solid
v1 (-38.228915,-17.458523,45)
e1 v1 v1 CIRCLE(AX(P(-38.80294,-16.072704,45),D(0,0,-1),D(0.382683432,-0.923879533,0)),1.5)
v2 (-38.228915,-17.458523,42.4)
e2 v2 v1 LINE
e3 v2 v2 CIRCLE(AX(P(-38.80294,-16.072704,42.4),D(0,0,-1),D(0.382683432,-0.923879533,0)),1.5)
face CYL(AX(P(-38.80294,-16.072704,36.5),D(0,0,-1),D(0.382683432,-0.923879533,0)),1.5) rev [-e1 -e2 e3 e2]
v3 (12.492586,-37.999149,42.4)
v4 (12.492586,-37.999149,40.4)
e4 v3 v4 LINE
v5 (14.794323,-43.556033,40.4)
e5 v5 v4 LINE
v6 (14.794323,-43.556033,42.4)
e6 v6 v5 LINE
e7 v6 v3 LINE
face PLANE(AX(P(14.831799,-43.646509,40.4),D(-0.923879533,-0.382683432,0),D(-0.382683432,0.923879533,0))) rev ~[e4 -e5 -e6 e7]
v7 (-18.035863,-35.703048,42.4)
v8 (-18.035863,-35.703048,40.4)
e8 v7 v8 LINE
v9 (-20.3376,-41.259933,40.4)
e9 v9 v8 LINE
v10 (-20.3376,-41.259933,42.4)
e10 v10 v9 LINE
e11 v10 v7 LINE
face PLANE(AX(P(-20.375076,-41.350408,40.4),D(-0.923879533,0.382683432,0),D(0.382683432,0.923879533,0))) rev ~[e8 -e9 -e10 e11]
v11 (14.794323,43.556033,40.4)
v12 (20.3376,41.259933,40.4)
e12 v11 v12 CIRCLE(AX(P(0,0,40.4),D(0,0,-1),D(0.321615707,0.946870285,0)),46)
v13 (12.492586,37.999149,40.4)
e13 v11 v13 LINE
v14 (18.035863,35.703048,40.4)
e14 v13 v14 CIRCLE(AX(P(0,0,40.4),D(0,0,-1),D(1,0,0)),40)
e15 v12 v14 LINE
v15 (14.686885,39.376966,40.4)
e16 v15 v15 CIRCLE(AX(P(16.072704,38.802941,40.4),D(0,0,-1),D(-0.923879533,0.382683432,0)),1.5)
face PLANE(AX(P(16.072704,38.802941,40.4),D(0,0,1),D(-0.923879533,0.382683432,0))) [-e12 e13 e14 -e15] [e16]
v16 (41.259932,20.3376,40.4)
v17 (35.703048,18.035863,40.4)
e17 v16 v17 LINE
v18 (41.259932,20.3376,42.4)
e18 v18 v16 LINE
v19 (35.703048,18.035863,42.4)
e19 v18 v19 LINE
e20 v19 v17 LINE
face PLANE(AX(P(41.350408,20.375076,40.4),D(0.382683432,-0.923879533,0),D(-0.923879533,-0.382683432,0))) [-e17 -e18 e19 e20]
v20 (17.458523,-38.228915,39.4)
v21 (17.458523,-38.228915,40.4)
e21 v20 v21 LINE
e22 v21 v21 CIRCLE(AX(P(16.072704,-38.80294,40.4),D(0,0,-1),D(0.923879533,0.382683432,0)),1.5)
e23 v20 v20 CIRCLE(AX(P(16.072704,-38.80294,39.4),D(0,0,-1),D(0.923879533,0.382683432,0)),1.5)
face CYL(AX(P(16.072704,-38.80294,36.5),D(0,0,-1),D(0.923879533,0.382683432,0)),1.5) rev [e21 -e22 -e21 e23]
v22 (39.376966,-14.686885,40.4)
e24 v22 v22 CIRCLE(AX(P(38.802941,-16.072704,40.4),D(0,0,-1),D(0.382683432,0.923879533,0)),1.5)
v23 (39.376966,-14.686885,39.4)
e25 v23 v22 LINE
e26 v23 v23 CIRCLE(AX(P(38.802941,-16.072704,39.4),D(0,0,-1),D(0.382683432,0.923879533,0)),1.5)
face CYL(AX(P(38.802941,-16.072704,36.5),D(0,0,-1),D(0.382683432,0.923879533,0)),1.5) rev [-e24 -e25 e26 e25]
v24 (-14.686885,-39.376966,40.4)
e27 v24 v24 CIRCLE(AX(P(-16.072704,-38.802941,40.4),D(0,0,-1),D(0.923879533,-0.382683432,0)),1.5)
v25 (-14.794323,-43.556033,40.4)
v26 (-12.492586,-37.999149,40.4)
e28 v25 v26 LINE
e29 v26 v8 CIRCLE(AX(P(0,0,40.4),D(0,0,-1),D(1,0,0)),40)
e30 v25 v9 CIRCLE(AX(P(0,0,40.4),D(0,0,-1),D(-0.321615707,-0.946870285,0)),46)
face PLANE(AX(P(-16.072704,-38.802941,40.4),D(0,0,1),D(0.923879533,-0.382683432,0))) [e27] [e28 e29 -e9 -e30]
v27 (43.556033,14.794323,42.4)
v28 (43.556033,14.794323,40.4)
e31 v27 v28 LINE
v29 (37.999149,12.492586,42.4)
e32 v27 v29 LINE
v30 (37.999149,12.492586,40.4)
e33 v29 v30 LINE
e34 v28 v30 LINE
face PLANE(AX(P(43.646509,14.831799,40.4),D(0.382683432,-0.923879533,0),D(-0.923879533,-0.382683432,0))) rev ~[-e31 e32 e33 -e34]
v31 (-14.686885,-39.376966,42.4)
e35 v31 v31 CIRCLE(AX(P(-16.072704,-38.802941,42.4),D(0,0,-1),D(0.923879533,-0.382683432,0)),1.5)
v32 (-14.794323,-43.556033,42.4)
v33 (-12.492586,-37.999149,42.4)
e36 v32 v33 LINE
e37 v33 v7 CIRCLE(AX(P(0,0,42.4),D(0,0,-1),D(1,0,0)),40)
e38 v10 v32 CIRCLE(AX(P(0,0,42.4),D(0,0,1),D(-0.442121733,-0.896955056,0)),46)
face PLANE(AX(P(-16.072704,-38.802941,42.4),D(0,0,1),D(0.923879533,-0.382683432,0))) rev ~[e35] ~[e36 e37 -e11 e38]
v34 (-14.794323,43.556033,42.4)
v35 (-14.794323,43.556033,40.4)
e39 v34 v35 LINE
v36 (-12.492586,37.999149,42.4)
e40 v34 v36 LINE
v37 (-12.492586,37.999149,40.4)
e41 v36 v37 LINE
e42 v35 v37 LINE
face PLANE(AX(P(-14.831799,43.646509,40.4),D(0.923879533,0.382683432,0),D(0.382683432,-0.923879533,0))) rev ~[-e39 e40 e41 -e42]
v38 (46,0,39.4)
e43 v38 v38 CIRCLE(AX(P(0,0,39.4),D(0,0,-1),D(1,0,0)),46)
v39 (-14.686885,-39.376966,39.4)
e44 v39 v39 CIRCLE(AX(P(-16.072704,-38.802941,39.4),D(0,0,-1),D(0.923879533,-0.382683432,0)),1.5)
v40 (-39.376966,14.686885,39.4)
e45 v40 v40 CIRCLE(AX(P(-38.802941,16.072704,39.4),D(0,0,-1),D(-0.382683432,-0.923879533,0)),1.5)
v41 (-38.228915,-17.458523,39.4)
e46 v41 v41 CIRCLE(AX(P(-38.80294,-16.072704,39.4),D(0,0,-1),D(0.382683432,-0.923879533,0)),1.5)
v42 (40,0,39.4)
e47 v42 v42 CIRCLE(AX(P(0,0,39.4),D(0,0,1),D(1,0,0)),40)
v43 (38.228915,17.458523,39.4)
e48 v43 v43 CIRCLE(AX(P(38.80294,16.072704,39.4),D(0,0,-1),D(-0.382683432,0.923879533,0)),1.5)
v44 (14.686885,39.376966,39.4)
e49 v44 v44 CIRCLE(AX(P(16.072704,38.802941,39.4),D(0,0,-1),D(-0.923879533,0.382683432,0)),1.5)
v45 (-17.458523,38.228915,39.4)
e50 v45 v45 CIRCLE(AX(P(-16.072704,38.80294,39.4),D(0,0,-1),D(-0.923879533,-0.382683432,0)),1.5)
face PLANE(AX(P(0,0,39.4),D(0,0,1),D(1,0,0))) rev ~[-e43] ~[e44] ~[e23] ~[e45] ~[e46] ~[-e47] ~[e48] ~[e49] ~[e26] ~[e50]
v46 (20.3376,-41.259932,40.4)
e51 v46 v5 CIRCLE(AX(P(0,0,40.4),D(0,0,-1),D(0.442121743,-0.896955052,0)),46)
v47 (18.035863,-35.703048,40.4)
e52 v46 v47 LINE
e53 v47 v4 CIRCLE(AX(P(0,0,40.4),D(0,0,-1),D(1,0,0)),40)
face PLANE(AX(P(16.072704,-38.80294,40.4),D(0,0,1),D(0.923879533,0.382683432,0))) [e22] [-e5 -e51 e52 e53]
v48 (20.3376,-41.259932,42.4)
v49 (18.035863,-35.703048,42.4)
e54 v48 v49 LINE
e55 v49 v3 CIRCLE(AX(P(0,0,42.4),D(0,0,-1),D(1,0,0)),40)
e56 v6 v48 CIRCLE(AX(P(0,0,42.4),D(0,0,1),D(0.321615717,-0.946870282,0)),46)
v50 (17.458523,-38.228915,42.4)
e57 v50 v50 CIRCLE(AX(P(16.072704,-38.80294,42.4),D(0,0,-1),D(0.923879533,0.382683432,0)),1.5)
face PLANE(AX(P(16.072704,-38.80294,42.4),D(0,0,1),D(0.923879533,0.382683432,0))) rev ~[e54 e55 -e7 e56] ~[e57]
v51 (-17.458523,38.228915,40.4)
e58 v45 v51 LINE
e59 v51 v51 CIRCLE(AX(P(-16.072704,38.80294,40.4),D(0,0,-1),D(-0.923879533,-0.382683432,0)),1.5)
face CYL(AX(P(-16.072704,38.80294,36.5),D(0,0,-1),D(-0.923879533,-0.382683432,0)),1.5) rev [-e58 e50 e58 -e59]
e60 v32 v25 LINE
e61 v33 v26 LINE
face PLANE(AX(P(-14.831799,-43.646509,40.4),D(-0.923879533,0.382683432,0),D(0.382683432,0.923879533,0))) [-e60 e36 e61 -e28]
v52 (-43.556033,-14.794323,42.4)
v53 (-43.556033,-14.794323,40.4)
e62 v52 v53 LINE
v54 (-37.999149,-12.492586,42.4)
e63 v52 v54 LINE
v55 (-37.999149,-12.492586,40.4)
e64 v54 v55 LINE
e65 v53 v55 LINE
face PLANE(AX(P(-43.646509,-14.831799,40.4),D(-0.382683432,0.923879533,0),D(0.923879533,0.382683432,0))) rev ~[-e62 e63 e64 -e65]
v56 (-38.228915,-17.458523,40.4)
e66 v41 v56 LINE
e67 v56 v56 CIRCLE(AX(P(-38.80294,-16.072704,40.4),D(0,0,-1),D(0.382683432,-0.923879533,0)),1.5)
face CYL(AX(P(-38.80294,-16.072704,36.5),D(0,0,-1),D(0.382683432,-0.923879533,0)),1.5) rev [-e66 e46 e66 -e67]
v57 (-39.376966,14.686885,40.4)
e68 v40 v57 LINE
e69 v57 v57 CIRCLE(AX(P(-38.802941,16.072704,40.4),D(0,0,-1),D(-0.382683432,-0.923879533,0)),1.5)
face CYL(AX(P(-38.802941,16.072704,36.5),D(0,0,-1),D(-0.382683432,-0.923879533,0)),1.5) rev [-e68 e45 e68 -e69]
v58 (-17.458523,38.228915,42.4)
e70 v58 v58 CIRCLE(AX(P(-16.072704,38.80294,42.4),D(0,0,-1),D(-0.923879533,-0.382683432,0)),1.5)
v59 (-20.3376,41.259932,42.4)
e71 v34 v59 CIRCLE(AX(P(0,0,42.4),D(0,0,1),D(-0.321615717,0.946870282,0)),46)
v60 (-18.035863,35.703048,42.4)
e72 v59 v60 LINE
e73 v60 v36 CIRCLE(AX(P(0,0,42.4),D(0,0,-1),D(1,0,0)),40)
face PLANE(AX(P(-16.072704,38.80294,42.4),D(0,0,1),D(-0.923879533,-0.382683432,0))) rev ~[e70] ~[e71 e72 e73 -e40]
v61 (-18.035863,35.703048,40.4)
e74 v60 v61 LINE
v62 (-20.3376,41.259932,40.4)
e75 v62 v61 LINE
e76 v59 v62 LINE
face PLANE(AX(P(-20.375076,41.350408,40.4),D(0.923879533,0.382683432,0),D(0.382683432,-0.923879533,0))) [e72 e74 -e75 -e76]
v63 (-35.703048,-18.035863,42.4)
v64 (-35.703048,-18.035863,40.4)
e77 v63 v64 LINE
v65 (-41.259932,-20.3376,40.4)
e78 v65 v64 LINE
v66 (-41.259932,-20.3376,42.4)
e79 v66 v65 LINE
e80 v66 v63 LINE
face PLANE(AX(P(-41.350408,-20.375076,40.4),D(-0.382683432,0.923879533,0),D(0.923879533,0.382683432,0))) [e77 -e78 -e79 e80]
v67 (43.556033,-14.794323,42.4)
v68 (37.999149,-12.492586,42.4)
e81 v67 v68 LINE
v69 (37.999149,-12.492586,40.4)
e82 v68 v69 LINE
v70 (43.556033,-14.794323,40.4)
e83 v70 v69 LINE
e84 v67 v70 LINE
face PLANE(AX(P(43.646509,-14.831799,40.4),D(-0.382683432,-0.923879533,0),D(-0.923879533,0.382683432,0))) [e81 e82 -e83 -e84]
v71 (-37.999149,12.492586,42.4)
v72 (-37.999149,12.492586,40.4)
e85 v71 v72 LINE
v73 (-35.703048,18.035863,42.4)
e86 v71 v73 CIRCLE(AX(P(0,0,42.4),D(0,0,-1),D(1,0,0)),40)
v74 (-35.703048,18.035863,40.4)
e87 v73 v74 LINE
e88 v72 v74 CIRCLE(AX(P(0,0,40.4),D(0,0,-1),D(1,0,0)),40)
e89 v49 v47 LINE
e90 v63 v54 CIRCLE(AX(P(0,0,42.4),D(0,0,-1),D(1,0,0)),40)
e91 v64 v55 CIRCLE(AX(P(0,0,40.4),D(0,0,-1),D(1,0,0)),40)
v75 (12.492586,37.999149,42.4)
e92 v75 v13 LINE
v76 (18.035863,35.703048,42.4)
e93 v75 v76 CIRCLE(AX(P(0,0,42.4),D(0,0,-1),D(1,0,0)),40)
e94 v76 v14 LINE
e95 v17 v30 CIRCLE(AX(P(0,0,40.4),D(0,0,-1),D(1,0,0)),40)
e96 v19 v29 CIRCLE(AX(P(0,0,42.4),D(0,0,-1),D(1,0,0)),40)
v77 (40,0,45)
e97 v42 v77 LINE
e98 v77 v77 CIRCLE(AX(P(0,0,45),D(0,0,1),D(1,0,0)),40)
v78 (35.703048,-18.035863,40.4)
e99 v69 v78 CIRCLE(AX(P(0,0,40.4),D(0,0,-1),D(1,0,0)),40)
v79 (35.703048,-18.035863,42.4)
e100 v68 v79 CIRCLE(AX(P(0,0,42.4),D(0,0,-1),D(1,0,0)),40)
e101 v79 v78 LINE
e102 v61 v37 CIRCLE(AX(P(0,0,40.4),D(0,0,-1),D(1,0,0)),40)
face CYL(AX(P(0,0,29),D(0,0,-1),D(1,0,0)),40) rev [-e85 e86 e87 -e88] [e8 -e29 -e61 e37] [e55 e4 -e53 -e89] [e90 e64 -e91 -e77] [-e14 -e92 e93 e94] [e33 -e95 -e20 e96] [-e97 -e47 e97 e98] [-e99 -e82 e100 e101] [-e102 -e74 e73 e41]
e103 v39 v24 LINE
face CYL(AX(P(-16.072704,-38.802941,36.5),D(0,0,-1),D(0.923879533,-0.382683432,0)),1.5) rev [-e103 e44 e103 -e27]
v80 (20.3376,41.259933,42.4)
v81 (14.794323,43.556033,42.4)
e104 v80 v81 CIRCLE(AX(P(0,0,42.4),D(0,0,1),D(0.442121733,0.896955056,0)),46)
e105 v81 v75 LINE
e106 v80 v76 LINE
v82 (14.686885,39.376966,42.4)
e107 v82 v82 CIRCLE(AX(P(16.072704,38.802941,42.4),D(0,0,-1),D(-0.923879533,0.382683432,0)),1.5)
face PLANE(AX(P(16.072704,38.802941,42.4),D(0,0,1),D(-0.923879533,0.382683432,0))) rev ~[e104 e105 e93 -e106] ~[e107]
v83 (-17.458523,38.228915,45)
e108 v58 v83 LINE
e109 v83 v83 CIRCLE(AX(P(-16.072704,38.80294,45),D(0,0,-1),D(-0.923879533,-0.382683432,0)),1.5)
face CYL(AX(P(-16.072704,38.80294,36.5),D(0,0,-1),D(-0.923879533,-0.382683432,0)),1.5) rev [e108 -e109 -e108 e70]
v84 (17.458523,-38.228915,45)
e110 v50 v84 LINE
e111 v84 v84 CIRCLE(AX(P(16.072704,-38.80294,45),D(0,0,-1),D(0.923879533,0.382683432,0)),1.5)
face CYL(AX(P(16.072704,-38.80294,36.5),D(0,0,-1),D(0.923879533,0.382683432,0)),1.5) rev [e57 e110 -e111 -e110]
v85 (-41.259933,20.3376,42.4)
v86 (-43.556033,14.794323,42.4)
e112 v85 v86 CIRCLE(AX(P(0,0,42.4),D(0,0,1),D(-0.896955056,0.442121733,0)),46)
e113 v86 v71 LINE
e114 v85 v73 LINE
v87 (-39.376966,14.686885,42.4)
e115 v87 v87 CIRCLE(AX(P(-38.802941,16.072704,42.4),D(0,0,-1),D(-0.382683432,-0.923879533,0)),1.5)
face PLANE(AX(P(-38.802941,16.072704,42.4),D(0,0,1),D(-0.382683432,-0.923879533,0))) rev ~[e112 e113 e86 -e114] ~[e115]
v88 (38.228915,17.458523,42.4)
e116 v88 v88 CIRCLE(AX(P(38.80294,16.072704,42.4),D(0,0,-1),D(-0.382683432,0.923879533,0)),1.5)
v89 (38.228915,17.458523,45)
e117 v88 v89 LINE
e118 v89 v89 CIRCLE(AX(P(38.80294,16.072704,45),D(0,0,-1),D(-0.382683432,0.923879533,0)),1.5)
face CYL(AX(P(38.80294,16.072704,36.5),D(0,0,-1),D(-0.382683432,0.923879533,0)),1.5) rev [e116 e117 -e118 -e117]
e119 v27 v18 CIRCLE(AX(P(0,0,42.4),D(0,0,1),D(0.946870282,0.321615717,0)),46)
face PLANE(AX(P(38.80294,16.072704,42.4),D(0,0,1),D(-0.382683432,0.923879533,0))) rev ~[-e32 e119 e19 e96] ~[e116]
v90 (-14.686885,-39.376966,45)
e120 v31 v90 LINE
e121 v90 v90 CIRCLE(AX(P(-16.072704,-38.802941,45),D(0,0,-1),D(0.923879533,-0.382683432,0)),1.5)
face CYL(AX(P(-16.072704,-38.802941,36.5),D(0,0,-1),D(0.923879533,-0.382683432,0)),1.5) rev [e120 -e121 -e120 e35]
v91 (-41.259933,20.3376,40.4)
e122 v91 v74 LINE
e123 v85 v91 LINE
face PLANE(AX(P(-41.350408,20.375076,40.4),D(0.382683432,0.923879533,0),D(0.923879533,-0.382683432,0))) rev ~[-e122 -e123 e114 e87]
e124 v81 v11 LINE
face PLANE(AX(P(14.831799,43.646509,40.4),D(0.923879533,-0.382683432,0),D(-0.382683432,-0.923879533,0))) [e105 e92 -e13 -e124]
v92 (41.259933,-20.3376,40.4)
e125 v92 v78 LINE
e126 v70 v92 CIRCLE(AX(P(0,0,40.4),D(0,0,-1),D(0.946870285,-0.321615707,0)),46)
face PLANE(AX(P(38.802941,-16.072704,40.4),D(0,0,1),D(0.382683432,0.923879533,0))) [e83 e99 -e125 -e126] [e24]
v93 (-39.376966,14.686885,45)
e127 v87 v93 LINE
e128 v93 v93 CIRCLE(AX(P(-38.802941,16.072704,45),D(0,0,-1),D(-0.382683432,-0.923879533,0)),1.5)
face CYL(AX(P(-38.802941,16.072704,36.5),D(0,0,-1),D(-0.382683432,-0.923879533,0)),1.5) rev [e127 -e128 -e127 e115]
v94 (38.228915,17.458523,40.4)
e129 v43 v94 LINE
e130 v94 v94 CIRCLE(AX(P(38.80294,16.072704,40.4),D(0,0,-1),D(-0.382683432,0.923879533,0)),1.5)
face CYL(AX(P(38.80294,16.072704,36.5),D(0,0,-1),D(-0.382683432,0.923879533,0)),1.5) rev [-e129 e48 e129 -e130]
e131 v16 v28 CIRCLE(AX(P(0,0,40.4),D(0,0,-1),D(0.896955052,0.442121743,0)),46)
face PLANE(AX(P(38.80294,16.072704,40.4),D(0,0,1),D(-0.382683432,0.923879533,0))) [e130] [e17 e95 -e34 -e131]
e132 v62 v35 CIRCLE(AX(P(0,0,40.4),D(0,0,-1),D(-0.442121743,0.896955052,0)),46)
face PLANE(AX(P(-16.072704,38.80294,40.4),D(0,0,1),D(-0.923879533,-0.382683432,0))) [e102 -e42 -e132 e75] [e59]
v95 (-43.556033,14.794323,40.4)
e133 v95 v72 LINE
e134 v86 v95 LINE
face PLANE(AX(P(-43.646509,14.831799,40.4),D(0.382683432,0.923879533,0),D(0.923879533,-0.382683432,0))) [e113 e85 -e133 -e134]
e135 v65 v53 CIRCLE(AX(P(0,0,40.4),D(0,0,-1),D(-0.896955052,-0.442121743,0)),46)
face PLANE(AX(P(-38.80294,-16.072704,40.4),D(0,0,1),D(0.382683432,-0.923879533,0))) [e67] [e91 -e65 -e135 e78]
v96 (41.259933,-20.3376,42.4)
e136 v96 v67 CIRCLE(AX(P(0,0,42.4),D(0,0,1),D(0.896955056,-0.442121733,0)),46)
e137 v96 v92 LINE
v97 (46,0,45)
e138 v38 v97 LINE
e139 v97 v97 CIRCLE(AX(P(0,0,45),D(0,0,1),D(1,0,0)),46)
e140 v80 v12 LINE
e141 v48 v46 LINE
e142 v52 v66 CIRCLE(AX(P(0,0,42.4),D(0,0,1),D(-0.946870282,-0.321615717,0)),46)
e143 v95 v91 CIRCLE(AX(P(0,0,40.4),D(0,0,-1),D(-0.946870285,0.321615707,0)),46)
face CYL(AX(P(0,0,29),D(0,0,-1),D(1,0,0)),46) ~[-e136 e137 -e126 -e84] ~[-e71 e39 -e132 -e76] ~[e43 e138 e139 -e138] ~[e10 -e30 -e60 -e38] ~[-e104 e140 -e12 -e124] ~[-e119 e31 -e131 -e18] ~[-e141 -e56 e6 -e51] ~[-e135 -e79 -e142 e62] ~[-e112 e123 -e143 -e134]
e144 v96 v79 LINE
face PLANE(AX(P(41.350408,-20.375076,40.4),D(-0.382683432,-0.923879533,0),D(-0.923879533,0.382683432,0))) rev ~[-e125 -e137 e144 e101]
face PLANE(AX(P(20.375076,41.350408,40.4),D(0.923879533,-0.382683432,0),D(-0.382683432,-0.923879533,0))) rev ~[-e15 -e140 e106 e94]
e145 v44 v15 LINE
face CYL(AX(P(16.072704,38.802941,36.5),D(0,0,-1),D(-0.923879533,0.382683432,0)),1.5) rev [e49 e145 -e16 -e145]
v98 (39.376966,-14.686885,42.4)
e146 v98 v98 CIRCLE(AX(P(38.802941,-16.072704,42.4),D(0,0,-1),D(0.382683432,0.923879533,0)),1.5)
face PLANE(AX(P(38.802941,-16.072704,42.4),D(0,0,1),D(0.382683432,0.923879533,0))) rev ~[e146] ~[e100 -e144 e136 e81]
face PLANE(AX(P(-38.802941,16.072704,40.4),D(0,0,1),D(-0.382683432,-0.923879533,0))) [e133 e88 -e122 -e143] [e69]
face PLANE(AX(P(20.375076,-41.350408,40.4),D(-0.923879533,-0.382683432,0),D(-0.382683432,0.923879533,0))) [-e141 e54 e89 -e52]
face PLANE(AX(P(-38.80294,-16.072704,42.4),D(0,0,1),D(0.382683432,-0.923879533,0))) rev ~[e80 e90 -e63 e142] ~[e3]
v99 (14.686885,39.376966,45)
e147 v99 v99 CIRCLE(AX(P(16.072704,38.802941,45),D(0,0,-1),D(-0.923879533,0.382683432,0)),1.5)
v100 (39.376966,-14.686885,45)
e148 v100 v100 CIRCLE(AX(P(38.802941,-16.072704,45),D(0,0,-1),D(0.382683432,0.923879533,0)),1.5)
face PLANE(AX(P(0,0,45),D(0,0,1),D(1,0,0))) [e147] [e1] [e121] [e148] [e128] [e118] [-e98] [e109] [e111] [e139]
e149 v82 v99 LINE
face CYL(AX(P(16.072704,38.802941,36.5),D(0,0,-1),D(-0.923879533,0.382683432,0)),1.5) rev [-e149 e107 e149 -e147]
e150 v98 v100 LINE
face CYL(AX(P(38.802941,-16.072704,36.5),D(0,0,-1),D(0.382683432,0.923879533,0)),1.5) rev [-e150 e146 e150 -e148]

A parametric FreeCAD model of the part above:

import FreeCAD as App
import Part
import Sketcher


def add_polygon(sketch, points):
    """Adds a closed chain of lines whose ends are joined by coincident constraints."""
    first, n = sketch.GeometryCount, len(points)
    for a, b in zip(points, points[1:] + points[:1]):
        sketch.addGeometry(Part.LineSegment(App.Vector(*a, 0), App.Vector(*b, 0)), False)
    for i in range(n):
        sketch.addConstraint(Sketcher.Constraint("Coincident", first + i, 2, first + (i + 1) % n, 1))

doc = App.newDocument("Part")
params = doc.addObject("Spreadsheet::Sheet", "Params")
for row, (alias, value) in enumerate([
    ("sketch1_width", "6 mm"),
    ("sketch1_height", "8 mm"),
    ("pad1_length", "2 mm"),
    ("sketch2_width", "8 mm"),
    ("sketch2_height", "6 mm"),
    ("pad2_length", "2 mm"),
    ("sketch3_width", "6 mm"),
    ("sketch3_height", "8 mm"),
    ("pad3_length", "2 mm"),
    ("sketch4_width", "6 mm"),
    ("sketch4_height", "8 mm"),
    ("pad4_length", "2 mm"),
    ("sketch5_width", "6 mm"),
    ("sketch5_height", "8 mm"),
    ("pad5_length", "2 mm"),
    ("sketch6_width", "6 mm"),
    ("sketch6_height", "8 mm"),
    ("pad6_length", "2 mm"),
    ("sketch7_width", "8 mm"),
    ("sketch7_height", "6 mm"),
    ("pad7_length", "2 mm"),
    ("sketch8_width", "6 mm"),
    ("sketch8_height", "8 mm"),
    ("pad8_length", "2 mm"),
    ("sketch9_diameter", "3 mm"),
    ("pad9_length", "32 mm"),
    ("sketch10_diameter", "3 mm"),
    ("pad10_length", "32 mm"),
    ("sketch11_diameter", "3 mm"),
    ("pad11_length", "32 mm"),
    ("sketch12_diameter", "3 mm"),
    ("pad12_length", "32 mm"),
    ("sketch13_diameter", "3 mm"),
    ("pad13_length", "32 mm"),
    ("sketch14_diameter", "3 mm"),
    ("pad14_length", "32 mm"),
    ("sketch15_diameter", "3 mm"),
    ("pad15_length", "32 mm"),
    ("sketch16_diameter", "3 mm"),
    ("pad16_length", "32 mm"),
    ("sketch17_diameter", "100 mm"),
    ("sketch17_diameter2", "80 mm"),
    ("pad17_length", "11 mm"),
    ("sketch18_diameter", "92 mm"),
    ("sketch18_diameter2", "80 mm"),
    ("pad18_length", "16 mm"),
], start=1):
    params.set(f"A{row}", alias)
    params.set(f"B{row}", "=" + value)
    params.setAlias(f"B{row}", alias)

body = doc.addObject("PartDesign::Body", "Body")

sketch1 = body.newObject("Sketcher::SketchObject", "Sketch")
sketch1.AttachmentSupport = (doc.getObject("XY_Plane"), [""])
sketch1.MapMode = "FlatFace"
add_polygon(sketch1, [(0, 8), (0, 0), (6, 0), (6, 8)])
sketch1.addConstraint(Sketcher.Constraint("Vertical", 0))
sketch1.addConstraint(Sketcher.Constraint("Horizontal", 1))
sketch1.addConstraint(Sketcher.Constraint("Vertical", 2))
sketch1.addConstraint(Sketcher.Constraint("Horizontal", 3))
sketch1.addConstraint(Sketcher.Constraint("Coincident", 0, 2, -1, 1))
sketch1.addConstraint(Sketcher.Constraint("DistanceX", 1, 1, 1, 2, 6.0))
sketch1.addConstraint(Sketcher.Constraint("DistanceY", 0, 2, 0, 1, 8.0))
sketch1.setExpression("Constraints[9]", "Params.sketch1_width")
sketch1.setExpression("Constraints[10]", "Params.sketch1_height")
pad1 = body.newObject("PartDesign::Pad", "Pad")
pad1.Profile = sketch1
pad1.setExpression("Length", "Params.pad1_length")
body2 = doc.addObject("PartDesign::Body", "Body001")
doc.recompute()

body.Placement = App.Placement(App.Vector(30.405592, -34.648232, 33), App.Rotation(App.Vector(0, 0, 1), 45))
boolean = body2.newObject("PartDesign::Boolean", "Boolean")
boolean.Type = "Fuse"
boolean.addObjects([body])
body3 = doc.addObject("PartDesign::Body", "Body002")

sketch2 = body3.newObject("Sketcher::SketchObject", "Sketch001")
sketch2.AttachmentSupport = (doc.getObject("XY_Plane002"), [""])
sketch2.MapMode = "FlatFace"
sketch2.AttachmentOffset = App.Placement(App.Vector(0, 0, 33), App.Rotation())
add_polygon(sketch2, [(38, -3), (46, -3), (46, 3), (38, 3)])
sketch2.addConstraint(Sketcher.Constraint("Horizontal", 0))
sketch2.addConstraint(Sketcher.Constraint("Vertical", 1))
sketch2.addConstraint(Sketcher.Constraint("Horizontal", 2))
sketch2.addConstraint(Sketcher.Constraint("Vertical", 3))
sketch2.addConstraint(Sketcher.Constraint("DistanceX", 0, 1, 0, 2, 8.0))
sketch2.addConstraint(Sketcher.Constraint("DistanceY", 1, 1, 1, 2, 6.0))
sketch2.addConstraint(Sketcher.Constraint("DistanceX", -1, 1, 0, 2, 46.0))
sketch2.addConstraint(Sketcher.Constraint("DistanceY", 0, 2, -1, 1, 3.0))
sketch2.setExpression("Constraints[8]", "Params.sketch2_width")
sketch2.setExpression("Constraints[9]", "Params.sketch2_height")
pad2 = body3.newObject("PartDesign::Pad", "Pad001")
pad2.Profile = sketch2
pad2.setExpression("Length", "Params.pad2_length")
body4 = doc.addObject("PartDesign::Body", "Body003")

sketch3 = body4.newObject("Sketcher::SketchObject", "Sketch002")
sketch3.AttachmentSupport = (doc.getObject("XY_Plane003"), [""])
sketch3.MapMode = "FlatFace"
sketch3.AttachmentOffset = App.Placement(App.Vector(0, 0, 33), App.Rotation())
add_polygon(sketch3, [(-3, -38), (-3, -46), (3, -46), (3, -38)])
sketch3.addConstraint(Sketcher.Constraint("Vertical", 0))
sketch3.addConstraint(Sketcher.Constraint("Horizontal", 1))
sketch3.addConstraint(Sketcher.Constraint("Vertical", 2))
sketch3.addConstraint(Sketcher.Constraint("Horizontal", 3))
sketch3.addConstraint(Sketcher.Constraint("DistanceX", 1, 1, 1, 2, 6.0))
sketch3.addConstraint(Sketcher.Constraint("DistanceY", 0, 2, 0, 1, 8.0))
sketch3.addConstraint(Sketcher.Constraint("DistanceX", 0, 2, -1, 1, 3.0))
sketch3.addConstraint(Sketcher.Constraint("DistanceY", 0, 2, -1, 1, 46.0))
sketch3.setExpression("Constraints[8]", "Params.sketch3_width")
sketch3.setExpression("Constraints[9]", "Params.sketch3_height")
pad3 = body4.newObject("PartDesign::Pad", "Pad002")
pad3.Profile = sketch3
pad3.setExpression("Length", "Params.pad3_length")
body5 = doc.addObject("PartDesign::Body", "Body004")

sketch4 = body5.newObject("Sketcher::SketchObject", "Sketch003")
sketch4.AttachmentSupport = (doc.getObject("XY_Plane004"), [""])
sketch4.MapMode = "FlatFace"
add_polygon(sketch4, [(0, 8), (0, 0), (6, 0), (6, 8)])
sketch4.addConstraint(Sketcher.Constraint("Vertical", 0))
sketch4.addConstraint(Sketcher.Constraint("Horizontal", 1))
sketch4.addConstraint(Sketcher.Constraint("Vertical", 2))
sketch4.addConstraint(Sketcher.Constraint("Horizontal", 3))
sketch4.addConstraint(Sketcher.Constraint("Coincident", 0, 2, -1, 1))
sketch4.addConstraint(Sketcher.Constraint("DistanceX", 1, 1, 1, 2, 6.0))
sketch4.addConstraint(Sketcher.Constraint("DistanceY", 0, 2, 0, 1, 8.0))
sketch4.setExpression("Constraints[9]", "Params.sketch4_width")
sketch4.setExpression("Constraints[10]", "Params.sketch4_height")
pad4 = body5.newObject("PartDesign::Pad", "Pad003")
pad4.Profile = sketch4
pad4.setExpression("Length", "Params.pad4_length")
body6 = doc.addObject("PartDesign::Body", "Body005")
doc.recompute()

body5.Placement = App.Placement(App.Vector(34.648232, 30.405592, 33), App.Rotation(App.Vector(0, 0, 1), 135))
boolean2 = body6.newObject("PartDesign::Boolean", "Boolean001")
boolean2.Type = "Fuse"
boolean2.addObjects([body5])
body7 = doc.addObject("PartDesign::Body", "Body006")

sketch5 = body7.newObject("Sketcher::SketchObject", "Sketch004")
sketch5.AttachmentSupport = (doc.getObject("XY_Plane006"), [""])
sketch5.MapMode = "FlatFace"
sketch5.AttachmentOffset = App.Placement(App.Vector(0, 0, 33), App.Rotation())
add_polygon(sketch5, [(3, 38), (3, 46), (-3, 46), (-3, 38)])
sketch5.addConstraint(Sketcher.Constraint("Vertical", 0))
sketch5.addConstraint(Sketcher.Constraint("Horizontal", 1))
sketch5.addConstraint(Sketcher.Constraint("Vertical", 2))
sketch5.addConstraint(Sketcher.Constraint("Horizontal", 3))
sketch5.addConstraint(Sketcher.Constraint("DistanceX", 1, 2, 1, 1, 6.0))
sketch5.addConstraint(Sketcher.Constraint("DistanceY", 0, 1, 0, 2, 8.0))
sketch5.addConstraint(Sketcher.Constraint("DistanceX", -1, 1, 0, 2, 3.0))
sketch5.addConstraint(Sketcher.Constraint("DistanceY", -1, 1, 0, 2, 46.0))
sketch5.setExpression("Constraints[8]", "Params.sketch5_width")
sketch5.setExpression("Constraints[9]", "Params.sketch5_height")
pad5 = body7.newObject("PartDesign::Pad", "Pad004")
pad5.Profile = sketch5
pad5.setExpression("Length", "Params.pad5_length")
body8 = doc.addObject("PartDesign::Body", "Body007")

sketch6 = body8.newObject("Sketcher::SketchObject", "Sketch005")
sketch6.AttachmentSupport = (doc.getObject("XY_Plane007"), [""])
sketch6.MapMode = "FlatFace"
add_polygon(sketch6, [(0, 8), (0, 0), (6, 0), (6, 8)])
sketch6.addConstraint(Sketcher.Constraint("Vertical", 0))
sketch6.addConstraint(Sketcher.Constraint("Horizontal", 1))
sketch6.addConstraint(Sketcher.Constraint("Vertical", 2))
sketch6.addConstraint(Sketcher.Constraint("Horizontal", 3))
sketch6.addConstraint(Sketcher.Constraint("Coincident", 0, 2, -1, 1))
sketch6.addConstraint(Sketcher.Constraint("DistanceX", 1, 1, 1, 2, 6.0))
sketch6.addConstraint(Sketcher.Constraint("DistanceY", 0, 2, 0, 1, 8.0))
sketch6.setExpression("Constraints[9]", "Params.sketch6_width")
sketch6.setExpression("Constraints[10]", "Params.sketch6_height")
pad6 = body8.newObject("PartDesign::Pad", "Pad005")
pad6.Profile = sketch6
pad6.setExpression("Length", "Params.pad6_length")
body9 = doc.addObject("PartDesign::Body", "Body008")
doc.recompute()

body8.Placement = App.Placement(App.Vector(-30.405592, 34.648232, 33), App.Rotation(App.Vector(0, 0, 1), 225))
boolean3 = body9.newObject("PartDesign::Boolean", "Boolean002")
boolean3.Type = "Fuse"
boolean3.addObjects([body8])
body10 = doc.addObject("PartDesign::Body", "Body009")

sketch7 = body10.newObject("Sketcher::SketchObject", "Sketch006")
sketch7.AttachmentSupport = (doc.getObject("XY_Plane009"), [""])
sketch7.MapMode = "FlatFace"
sketch7.AttachmentOffset = App.Placement(App.Vector(0, 0, 33), App.Rotation())
add_polygon(sketch7, [(-38, 3), (-46, 3), (-46, -3), (-38, -3)])
sketch7.addConstraint(Sketcher.Constraint("Horizontal", 0))
sketch7.addConstraint(Sketcher.Constraint("Vertical", 1))
sketch7.addConstraint(Sketcher.Constraint("Horizontal", 2))
sketch7.addConstraint(Sketcher.Constraint("Vertical", 3))
sketch7.addConstraint(Sketcher.Constraint("DistanceX", 0, 2, 0, 1, 8.0))
sketch7.addConstraint(Sketcher.Constraint("DistanceY", 1, 2, 1, 1, 6.0))
sketch7.addConstraint(Sketcher.Constraint("DistanceX", 0, 2, -1, 1, 46.0))
sketch7.addConstraint(Sketcher.Constraint("DistanceY", -1, 1, 0, 2, 3.0))
sketch7.setExpression("Constraints[8]", "Params.sketch7_width")
sketch7.setExpression("Constraints[9]", "Params.sketch7_height")
pad7 = body10.newObject("PartDesign::Pad", "Pad006")
pad7.Profile = sketch7
pad7.setExpression("Length", "Params.pad7_length")
body11 = doc.addObject("PartDesign::Body", "Body010")

sketch8 = body11.newObject("Sketcher::SketchObject", "Sketch007")
sketch8.AttachmentSupport = (doc.getObject("XY_Plane010"), [""])
sketch8.MapMode = "FlatFace"
add_polygon(sketch8, [(0, 8), (0, 0), (6, 0), (6, 8)])
sketch8.addConstraint(Sketcher.Constraint("Vertical", 0))
sketch8.addConstraint(Sketcher.Constraint("Horizontal", 1))
sketch8.addConstraint(Sketcher.Constraint("Vertical", 2))
sketch8.addConstraint(Sketcher.Constraint("Horizontal", 3))
sketch8.addConstraint(Sketcher.Constraint("Coincident", 0, 2, -1, 1))
sketch8.addConstraint(Sketcher.Constraint("DistanceX", 1, 1, 1, 2, 6.0))
sketch8.addConstraint(Sketcher.Constraint("DistanceY", 0, 2, 0, 1, 8.0))
sketch8.setExpression("Constraints[9]", "Params.sketch8_width")
sketch8.setExpression("Constraints[10]", "Params.sketch8_height")
pad8 = body11.newObject("PartDesign::Pad", "Pad007")
pad8.Profile = sketch8
pad8.setExpression("Length", "Params.pad8_length")
body12 = doc.addObject("PartDesign::Body", "Body011")
body12.AllowCompound = True
doc.recompute()

body11.Placement = App.Placement(App.Vector(-34.648232, -30.405592, 33), App.Rotation(App.Vector(0, 0, -1), 45))
boolean4 = body12.newObject("PartDesign::Boolean", "Boolean003")
boolean4.Type = "Fuse"
boolean4.addObjects([body11])
doc.recompute()

boolean5 = body12.newObject("PartDesign::Boolean", "Boolean004")
boolean5.Type = "Fuse"
boolean5.addObjects([body2])
doc.recompute()

boolean6 = body12.newObject("PartDesign::Boolean", "Boolean005")
boolean6.Type = "Fuse"
boolean6.addObjects([body3])
doc.recompute()

boolean7 = body12.newObject("PartDesign::Boolean", "Boolean006")
boolean7.Type = "Fuse"
boolean7.addObjects([body4])
doc.recompute()

boolean8 = body12.newObject("PartDesign::Boolean", "Boolean007")
boolean8.Type = "Fuse"
boolean8.addObjects([body6])
doc.recompute()

boolean9 = body12.newObject("PartDesign::Boolean", "Boolean008")
boolean9.Type = "Fuse"
boolean9.addObjects([body7])
doc.recompute()

boolean10 = body12.newObject("PartDesign::Boolean", "Boolean009")
boolean10.Type = "Fuse"
boolean10.addObjects([body9])
doc.recompute()

boolean11 = body12.newObject("PartDesign::Boolean", "Boolean010")
boolean11.Type = "Fuse"
boolean11.addObjects([body10])
body13 = doc.addObject("PartDesign::Body", "Body012")
body13.AllowCompound = True
doc.recompute()

body12.Placement = App.Placement(App.Vector(0, 0, 4.4), App.Rotation(App.Vector(0, 0, 1), 22.5))
boolean12 = body13.newObject("PartDesign::Boolean", "Boolean011")
boolean12.Type = "Fuse"
boolean12.addObjects([body12])
body14 = doc.addObject("PartDesign::Body", "Body013")

sketch9 = body14.newObject("Sketcher::SketchObject", "Sketch008")
sketch9.AttachmentSupport = (doc.getObject("XY_Plane013"), [""])
sketch9.MapMode = "FlatFace"
sketch9.addGeometry(Part.Circle(App.Vector(0, 0, 0), App.Vector(0, 0, 1), 1.5), False)
sketch9.addConstraint(Sketcher.Constraint("Coincident", 0, 3, -1, 1))
sketch9.addConstraint(Sketcher.Constraint("Diameter", 0, 3.0))
sketch9.setExpression("Constraints[1]", "Params.sketch9_diameter")
pad9 = body14.newObject("PartDesign::Pad", "Pad008")
pad9.Profile = sketch9
pad9.setExpression("Length", "Params.pad9_length")
body15 = doc.addObject("PartDesign::Body", "Body014")
doc.recompute()

body14.Placement = App.Placement(App.Vector(29.698485, -29.698485, 33.5), App.Rotation(App.Vector(0, 0, 1), 45))
boolean13 = body15.newObject("PartDesign::Boolean", "Boolean012")
boolean13.Type = "Fuse"
boolean13.addObjects([body14])
body16 = doc.addObject("PartDesign::Body", "Body015")

sketch10 = body16.newObject("Sketcher::SketchObject", "Sketch009")
sketch10.AttachmentSupport = (doc.getObject("XY_Plane015"), [""])
sketch10.MapMode = "FlatFace"
sketch10.AttachmentOffset = App.Placement(App.Vector(0, 0, 33.5), App.Rotation())
sketch10.addGeometry(Part.Circle(App.Vector(42, 0, 0), App.Vector(0, 0, 1), 1.5), False)
sketch10.addConstraint(Sketcher.Constraint("PointOnObject", 0, 3, -1))
sketch10.addConstraint(Sketcher.Constraint("Diameter", 0, 3.0))
sketch10.addConstraint(Sketcher.Constraint("DistanceX", -1, 1, 0, 3, 42.0))
sketch10.setExpression("Constraints[1]", "Params.sketch10_diameter")
pad10 = body16.newObject("PartDesign::Pad", "Pad009")
pad10.Profile = sketch10
pad10.setExpression("Length", "Params.pad10_length")
body17 = doc.addObject("PartDesign::Body", "Body016")

sketch11 = body17.newObject("Sketcher::SketchObject", "Sketch010")
sketch11.AttachmentSupport = (doc.getObject("XY_Plane016"), [""])
sketch11.MapMode = "FlatFace"
sketch11.addGeometry(Part.Circle(App.Vector(0, 0, 0), App.Vector(0, 0, 1), 1.5), False)
sketch11.addConstraint(Sketcher.Constraint("Coincident", 0, 3, -1, 1))
sketch11.addConstraint(Sketcher.Constraint("Diameter", 0, 3.0))
sketch11.setExpression("Constraints[1]", "Params.sketch11_diameter")
pad11 = body17.newObject("PartDesign::Pad", "Pad010")
pad11.Profile = sketch11
pad11.setExpression("Length", "Params.pad11_length")
body18 = doc.addObject("PartDesign::Body", "Body017")
doc.recompute()

body17.Placement = App.Placement(App.Vector(29.698485, 29.698485, 33.5), App.Rotation(App.Vector(0, 0, 1), 135))
boolean14 = body18.newObject("PartDesign::Boolean", "Boolean013")
boolean14.Type = "Fuse"
boolean14.addObjects([body17])
body19 = doc.addObject("PartDesign::Body", "Body018")

sketch12 = body19.newObject("Sketcher::SketchObject", "Sketch011")
sketch12.AttachmentSupport = (doc.getObject("XY_Plane018"), [""])
sketch12.MapMode = "FlatFace"
sketch12.AttachmentOffset = App.Placement(App.Vector(0, 0, 33.5), App.Rotation())
sketch12.addGeometry(Part.Circle(App.Vector(0, 42, 0), App.Vector(0, 0, 1), 1.5), False)
sketch12.addConstraint(Sketcher.Constraint("PointOnObject", 0, 3, -2))
sketch12.addConstraint(Sketcher.Constraint("Diameter", 0, 3.0))
sketch12.addConstraint(Sketcher.Constraint("DistanceY", -1, 1, 0, 3, 42.0))
sketch12.setExpression("Constraints[1]", "Params.sketch12_diameter")
pad12 = body19.newObject("PartDesign::Pad", "Pad011")
pad12.Profile = sketch12
pad12.setExpression("Length", "Params.pad12_length")
body20 = doc.addObject("PartDesign::Body", "Body019")

sketch13 = body20.newObject("Sketcher::SketchObject", "Sketch012")
sketch13.AttachmentSupport = (doc.getObject("XY_Plane019"), [""])
sketch13.MapMode = "FlatFace"
sketch13.addGeometry(Part.Circle(App.Vector(0, 0, 0), App.Vector(0, 0, 1), 1.5), False)
sketch13.addConstraint(Sketcher.Constraint("Coincident", 0, 3, -1, 1))
sketch13.addConstraint(Sketcher.Constraint("Diameter", 0, 3.0))
sketch13.setExpression("Constraints[1]", "Params.sketch13_diameter")
pad13 = body20.newObject("PartDesign::Pad", "Pad012")
pad13.Profile = sketch13
pad13.setExpression("Length", "Params.pad13_length")
body21 = doc.addObject("PartDesign::Body", "Body020")
doc.recompute()

body20.Placement = App.Placement(App.Vector(-29.698485, 29.698485, 33.5), App.Rotation(App.Vector(0, 0, 1), 225))
boolean15 = body21.newObject("PartDesign::Boolean", "Boolean014")
boolean15.Type = "Fuse"
boolean15.addObjects([body20])
body22 = doc.addObject("PartDesign::Body", "Body021")

sketch14 = body22.newObject("Sketcher::SketchObject", "Sketch013")
sketch14.AttachmentSupport = (doc.getObject("XY_Plane021"), [""])
sketch14.MapMode = "FlatFace"
sketch14.AttachmentOffset = App.Placement(App.Vector(0, 0, 33.5), App.Rotation())
sketch14.addGeometry(Part.Circle(App.Vector(-42, 0, 0), App.Vector(0, 0, 1), 1.5), False)
sketch14.addConstraint(Sketcher.Constraint("PointOnObject", 0, 3, -1))
sketch14.addConstraint(Sketcher.Constraint("Diameter", 0, 3.0))
sketch14.addConstraint(Sketcher.Constraint("DistanceX", 0, 3, -1, 1, 42.0))
sketch14.setExpression("Constraints[1]", "Params.sketch14_diameter")
pad14 = body22.newObject("PartDesign::Pad", "Pad013")
pad14.Profile = sketch14
pad14.setExpression("Length", "Params.pad14_length")
body23 = doc.addObject("PartDesign::Body", "Body022")

sketch15 = body23.newObject("Sketcher::SketchObject", "Sketch014")
sketch15.AttachmentSupport = (doc.getObject("XY_Plane022"), [""])
sketch15.MapMode = "FlatFace"
sketch15.addGeometry(Part.Circle(App.Vector(0, 0, 0), App.Vector(0, 0, 1), 1.5), False)
sketch15.addConstraint(Sketcher.Constraint("Coincident", 0, 3, -1, 1))
sketch15.addConstraint(Sketcher.Constraint("Diameter", 0, 3.0))
sketch15.setExpression("Constraints[1]", "Params.sketch15_diameter")
pad15 = body23.newObject("PartDesign::Pad", "Pad014")
pad15.Profile = sketch15
pad15.setExpression("Length", "Params.pad15_length")
body24 = doc.addObject("PartDesign::Body", "Body023")
doc.recompute()

body23.Placement = App.Placement(App.Vector(-29.698485, -29.698485, 33.5), App.Rotation(App.Vector(0, 0, -1), 45))
boolean16 = body24.newObject("PartDesign::Boolean", "Boolean015")
boolean16.Type = "Fuse"
boolean16.addObjects([body23])
body25 = doc.addObject("PartDesign::Body", "Body024")
body25.AllowCompound = True

sketch16 = body25.newObject("Sketcher::SketchObject", "Sketch015")
sketch16.AttachmentSupport = (doc.getObject("XY_Plane024"), [""])
sketch16.MapMode = "FlatFace"
sketch16.AttachmentOffset = App.Placement(App.Vector(0, 0, 33.5), App.Rotation())
sketch16.addGeometry(Part.Circle(App.Vector(0, -42, 0), App.Vector(0, 0, 1), 1.5), False)
sketch16.addConstraint(Sketcher.Constraint("PointOnObject", 0, 3, -2))
sketch16.addConstraint(Sketcher.Constraint("Diameter", 0, 3.0))
sketch16.addConstraint(Sketcher.Constraint("DistanceY", 0, 3, -1, 1, 42.0))
sketch16.setExpression("Constraints[1]", "Params.sketch16_diameter")
pad16 = body25.newObject("PartDesign::Pad", "Pad015")
pad16.Profile = sketch16
pad16.setExpression("Length", "Params.pad16_length")
doc.recompute()

boolean17 = body25.newObject("PartDesign::Boolean", "Boolean016")
boolean17.Type = "Fuse"
boolean17.addObjects([body15])
doc.recompute()

boolean18 = body25.newObject("PartDesign::Boolean", "Boolean017")
boolean18.Type = "Fuse"
boolean18.addObjects([body16])
doc.recompute()

boolean19 = body25.newObject("PartDesign::Boolean", "Boolean018")
boolean19.Type = "Fuse"
boolean19.addObjects([body18])
doc.recompute()

boolean20 = body25.newObject("PartDesign::Boolean", "Boolean019")
boolean20.Type = "Fuse"
boolean20.addObjects([body19])
doc.recompute()

boolean21 = body25.newObject("PartDesign::Boolean", "Boolean020")
boolean21.Type = "Fuse"
boolean21.addObjects([body21])
doc.recompute()

boolean22 = body25.newObject("PartDesign::Boolean", "Boolean021")
boolean22.Type = "Fuse"
boolean22.addObjects([body22])
doc.recompute()

boolean23 = body25.newObject("PartDesign::Boolean", "Boolean022")
boolean23.Type = "Fuse"
boolean23.addObjects([body24])
body26 = doc.addObject("PartDesign::Body", "Body025")
body26.AllowCompound = True
doc.recompute()

body25.Placement = App.Placement(App.Vector(0, 0, 0), App.Rotation(App.Vector(0, 0, 1), 22.5))
boolean24 = body26.newObject("PartDesign::Boolean", "Boolean023")
boolean24.Type = "Fuse"
boolean24.addObjects([body25])
body27 = doc.addObject("PartDesign::Body", "Body026")

sketch17 = body27.newObject("Sketcher::SketchObject", "Sketch016")
sketch17.AttachmentSupport = (doc.getObject("XY_Plane026"), [""])
sketch17.MapMode = "FlatFace"
sketch17.AttachmentOffset = App.Placement(App.Vector(0, 0, 25.4), App.Rotation())
sketch17.addGeometry(Part.Circle(App.Vector(0, 0, 0), App.Vector(0, 0, 1), 50), False)
sketch17.addGeometry(Part.Circle(App.Vector(0, 0, 0), App.Vector(0, 0, 1), 40), False)
sketch17.addConstraint(Sketcher.Constraint("Coincident", 0, 3, -1, 1))
sketch17.addConstraint(Sketcher.Constraint("Coincident", 1, 3, -1, 1))
sketch17.addConstraint(Sketcher.Constraint("Diameter", 0, 100.0))
sketch17.addConstraint(Sketcher.Constraint("Diameter", 1, 80.0))
sketch17.setExpression("Constraints[2]", "Params.sketch17_diameter")
sketch17.setExpression("Constraints[3]", "Params.sketch17_diameter2")
pad17 = body27.newObject("PartDesign::Pad", "Pad016")
pad17.Profile = sketch17
pad17.setExpression("Length", "Params.pad17_length")
body28 = doc.addObject("PartDesign::Body", "Body027")

sketch18 = body28.newObject("Sketcher::SketchObject", "Sketch017")
sketch18.AttachmentSupport = (doc.getObject("XY_Plane027"), [""])
sketch18.MapMode = "FlatFace"
sketch18.AttachmentOffset = App.Placement(App.Vector(0, 0, 26), App.Rotation())
sketch18.addGeometry(Part.Circle(App.Vector(0, 0, 0), App.Vector(0, 0, 1), 46), False)
sketch18.addGeometry(Part.Circle(App.Vector(0, 0, 0), App.Vector(0, 0, 1), 40), False)
sketch18.addConstraint(Sketcher.Constraint("Coincident", 0, 3, -1, 1))
sketch18.addConstraint(Sketcher.Constraint("Coincident", 1, 3, -1, 1))
sketch18.addConstraint(Sketcher.Constraint("Diameter", 0, 92.0))
sketch18.addConstraint(Sketcher.Constraint("Diameter", 1, 80.0))
sketch18.setExpression("Constraints[2]", "Params.sketch18_diameter")
sketch18.setExpression("Constraints[3]", "Params.sketch18_diameter2")
pad18 = body28.newObject("PartDesign::Pad", "Pad017")
pad18.Profile = sketch18
pad18.setExpression("Length", "Params.pad18_length")
doc.recompute()

boolean25 = body28.newObject("PartDesign::Boolean", "Boolean024")
boolean25.Type = "Cut"
boolean25.addObjects([body27])
doc.recompute()

boolean26 = body28.newObject("PartDesign::Boolean", "Boolean025")
boolean26.Type = "Cut"
boolean26.addObjects([body26])
doc.recompute()

boolean27 = body28.newObject("PartDesign::Boolean", "Boolean026")
boolean27.Type = "Cut"
boolean27.addObjects([body13])
body29 = doc.addObject("PartDesign::Body", "Body028")
doc.recompute()

body28.Placement = App.Placement(App.Vector(0, 0, 3), App.Rotation(App.Vector(0, 0, 1), 0))
boolean28 = body29.newObject("PartDesign::Boolean", "Boolean027")
boolean28.Type = "Fuse"
boolean28.addObjects([body28])

doc.recompute()
